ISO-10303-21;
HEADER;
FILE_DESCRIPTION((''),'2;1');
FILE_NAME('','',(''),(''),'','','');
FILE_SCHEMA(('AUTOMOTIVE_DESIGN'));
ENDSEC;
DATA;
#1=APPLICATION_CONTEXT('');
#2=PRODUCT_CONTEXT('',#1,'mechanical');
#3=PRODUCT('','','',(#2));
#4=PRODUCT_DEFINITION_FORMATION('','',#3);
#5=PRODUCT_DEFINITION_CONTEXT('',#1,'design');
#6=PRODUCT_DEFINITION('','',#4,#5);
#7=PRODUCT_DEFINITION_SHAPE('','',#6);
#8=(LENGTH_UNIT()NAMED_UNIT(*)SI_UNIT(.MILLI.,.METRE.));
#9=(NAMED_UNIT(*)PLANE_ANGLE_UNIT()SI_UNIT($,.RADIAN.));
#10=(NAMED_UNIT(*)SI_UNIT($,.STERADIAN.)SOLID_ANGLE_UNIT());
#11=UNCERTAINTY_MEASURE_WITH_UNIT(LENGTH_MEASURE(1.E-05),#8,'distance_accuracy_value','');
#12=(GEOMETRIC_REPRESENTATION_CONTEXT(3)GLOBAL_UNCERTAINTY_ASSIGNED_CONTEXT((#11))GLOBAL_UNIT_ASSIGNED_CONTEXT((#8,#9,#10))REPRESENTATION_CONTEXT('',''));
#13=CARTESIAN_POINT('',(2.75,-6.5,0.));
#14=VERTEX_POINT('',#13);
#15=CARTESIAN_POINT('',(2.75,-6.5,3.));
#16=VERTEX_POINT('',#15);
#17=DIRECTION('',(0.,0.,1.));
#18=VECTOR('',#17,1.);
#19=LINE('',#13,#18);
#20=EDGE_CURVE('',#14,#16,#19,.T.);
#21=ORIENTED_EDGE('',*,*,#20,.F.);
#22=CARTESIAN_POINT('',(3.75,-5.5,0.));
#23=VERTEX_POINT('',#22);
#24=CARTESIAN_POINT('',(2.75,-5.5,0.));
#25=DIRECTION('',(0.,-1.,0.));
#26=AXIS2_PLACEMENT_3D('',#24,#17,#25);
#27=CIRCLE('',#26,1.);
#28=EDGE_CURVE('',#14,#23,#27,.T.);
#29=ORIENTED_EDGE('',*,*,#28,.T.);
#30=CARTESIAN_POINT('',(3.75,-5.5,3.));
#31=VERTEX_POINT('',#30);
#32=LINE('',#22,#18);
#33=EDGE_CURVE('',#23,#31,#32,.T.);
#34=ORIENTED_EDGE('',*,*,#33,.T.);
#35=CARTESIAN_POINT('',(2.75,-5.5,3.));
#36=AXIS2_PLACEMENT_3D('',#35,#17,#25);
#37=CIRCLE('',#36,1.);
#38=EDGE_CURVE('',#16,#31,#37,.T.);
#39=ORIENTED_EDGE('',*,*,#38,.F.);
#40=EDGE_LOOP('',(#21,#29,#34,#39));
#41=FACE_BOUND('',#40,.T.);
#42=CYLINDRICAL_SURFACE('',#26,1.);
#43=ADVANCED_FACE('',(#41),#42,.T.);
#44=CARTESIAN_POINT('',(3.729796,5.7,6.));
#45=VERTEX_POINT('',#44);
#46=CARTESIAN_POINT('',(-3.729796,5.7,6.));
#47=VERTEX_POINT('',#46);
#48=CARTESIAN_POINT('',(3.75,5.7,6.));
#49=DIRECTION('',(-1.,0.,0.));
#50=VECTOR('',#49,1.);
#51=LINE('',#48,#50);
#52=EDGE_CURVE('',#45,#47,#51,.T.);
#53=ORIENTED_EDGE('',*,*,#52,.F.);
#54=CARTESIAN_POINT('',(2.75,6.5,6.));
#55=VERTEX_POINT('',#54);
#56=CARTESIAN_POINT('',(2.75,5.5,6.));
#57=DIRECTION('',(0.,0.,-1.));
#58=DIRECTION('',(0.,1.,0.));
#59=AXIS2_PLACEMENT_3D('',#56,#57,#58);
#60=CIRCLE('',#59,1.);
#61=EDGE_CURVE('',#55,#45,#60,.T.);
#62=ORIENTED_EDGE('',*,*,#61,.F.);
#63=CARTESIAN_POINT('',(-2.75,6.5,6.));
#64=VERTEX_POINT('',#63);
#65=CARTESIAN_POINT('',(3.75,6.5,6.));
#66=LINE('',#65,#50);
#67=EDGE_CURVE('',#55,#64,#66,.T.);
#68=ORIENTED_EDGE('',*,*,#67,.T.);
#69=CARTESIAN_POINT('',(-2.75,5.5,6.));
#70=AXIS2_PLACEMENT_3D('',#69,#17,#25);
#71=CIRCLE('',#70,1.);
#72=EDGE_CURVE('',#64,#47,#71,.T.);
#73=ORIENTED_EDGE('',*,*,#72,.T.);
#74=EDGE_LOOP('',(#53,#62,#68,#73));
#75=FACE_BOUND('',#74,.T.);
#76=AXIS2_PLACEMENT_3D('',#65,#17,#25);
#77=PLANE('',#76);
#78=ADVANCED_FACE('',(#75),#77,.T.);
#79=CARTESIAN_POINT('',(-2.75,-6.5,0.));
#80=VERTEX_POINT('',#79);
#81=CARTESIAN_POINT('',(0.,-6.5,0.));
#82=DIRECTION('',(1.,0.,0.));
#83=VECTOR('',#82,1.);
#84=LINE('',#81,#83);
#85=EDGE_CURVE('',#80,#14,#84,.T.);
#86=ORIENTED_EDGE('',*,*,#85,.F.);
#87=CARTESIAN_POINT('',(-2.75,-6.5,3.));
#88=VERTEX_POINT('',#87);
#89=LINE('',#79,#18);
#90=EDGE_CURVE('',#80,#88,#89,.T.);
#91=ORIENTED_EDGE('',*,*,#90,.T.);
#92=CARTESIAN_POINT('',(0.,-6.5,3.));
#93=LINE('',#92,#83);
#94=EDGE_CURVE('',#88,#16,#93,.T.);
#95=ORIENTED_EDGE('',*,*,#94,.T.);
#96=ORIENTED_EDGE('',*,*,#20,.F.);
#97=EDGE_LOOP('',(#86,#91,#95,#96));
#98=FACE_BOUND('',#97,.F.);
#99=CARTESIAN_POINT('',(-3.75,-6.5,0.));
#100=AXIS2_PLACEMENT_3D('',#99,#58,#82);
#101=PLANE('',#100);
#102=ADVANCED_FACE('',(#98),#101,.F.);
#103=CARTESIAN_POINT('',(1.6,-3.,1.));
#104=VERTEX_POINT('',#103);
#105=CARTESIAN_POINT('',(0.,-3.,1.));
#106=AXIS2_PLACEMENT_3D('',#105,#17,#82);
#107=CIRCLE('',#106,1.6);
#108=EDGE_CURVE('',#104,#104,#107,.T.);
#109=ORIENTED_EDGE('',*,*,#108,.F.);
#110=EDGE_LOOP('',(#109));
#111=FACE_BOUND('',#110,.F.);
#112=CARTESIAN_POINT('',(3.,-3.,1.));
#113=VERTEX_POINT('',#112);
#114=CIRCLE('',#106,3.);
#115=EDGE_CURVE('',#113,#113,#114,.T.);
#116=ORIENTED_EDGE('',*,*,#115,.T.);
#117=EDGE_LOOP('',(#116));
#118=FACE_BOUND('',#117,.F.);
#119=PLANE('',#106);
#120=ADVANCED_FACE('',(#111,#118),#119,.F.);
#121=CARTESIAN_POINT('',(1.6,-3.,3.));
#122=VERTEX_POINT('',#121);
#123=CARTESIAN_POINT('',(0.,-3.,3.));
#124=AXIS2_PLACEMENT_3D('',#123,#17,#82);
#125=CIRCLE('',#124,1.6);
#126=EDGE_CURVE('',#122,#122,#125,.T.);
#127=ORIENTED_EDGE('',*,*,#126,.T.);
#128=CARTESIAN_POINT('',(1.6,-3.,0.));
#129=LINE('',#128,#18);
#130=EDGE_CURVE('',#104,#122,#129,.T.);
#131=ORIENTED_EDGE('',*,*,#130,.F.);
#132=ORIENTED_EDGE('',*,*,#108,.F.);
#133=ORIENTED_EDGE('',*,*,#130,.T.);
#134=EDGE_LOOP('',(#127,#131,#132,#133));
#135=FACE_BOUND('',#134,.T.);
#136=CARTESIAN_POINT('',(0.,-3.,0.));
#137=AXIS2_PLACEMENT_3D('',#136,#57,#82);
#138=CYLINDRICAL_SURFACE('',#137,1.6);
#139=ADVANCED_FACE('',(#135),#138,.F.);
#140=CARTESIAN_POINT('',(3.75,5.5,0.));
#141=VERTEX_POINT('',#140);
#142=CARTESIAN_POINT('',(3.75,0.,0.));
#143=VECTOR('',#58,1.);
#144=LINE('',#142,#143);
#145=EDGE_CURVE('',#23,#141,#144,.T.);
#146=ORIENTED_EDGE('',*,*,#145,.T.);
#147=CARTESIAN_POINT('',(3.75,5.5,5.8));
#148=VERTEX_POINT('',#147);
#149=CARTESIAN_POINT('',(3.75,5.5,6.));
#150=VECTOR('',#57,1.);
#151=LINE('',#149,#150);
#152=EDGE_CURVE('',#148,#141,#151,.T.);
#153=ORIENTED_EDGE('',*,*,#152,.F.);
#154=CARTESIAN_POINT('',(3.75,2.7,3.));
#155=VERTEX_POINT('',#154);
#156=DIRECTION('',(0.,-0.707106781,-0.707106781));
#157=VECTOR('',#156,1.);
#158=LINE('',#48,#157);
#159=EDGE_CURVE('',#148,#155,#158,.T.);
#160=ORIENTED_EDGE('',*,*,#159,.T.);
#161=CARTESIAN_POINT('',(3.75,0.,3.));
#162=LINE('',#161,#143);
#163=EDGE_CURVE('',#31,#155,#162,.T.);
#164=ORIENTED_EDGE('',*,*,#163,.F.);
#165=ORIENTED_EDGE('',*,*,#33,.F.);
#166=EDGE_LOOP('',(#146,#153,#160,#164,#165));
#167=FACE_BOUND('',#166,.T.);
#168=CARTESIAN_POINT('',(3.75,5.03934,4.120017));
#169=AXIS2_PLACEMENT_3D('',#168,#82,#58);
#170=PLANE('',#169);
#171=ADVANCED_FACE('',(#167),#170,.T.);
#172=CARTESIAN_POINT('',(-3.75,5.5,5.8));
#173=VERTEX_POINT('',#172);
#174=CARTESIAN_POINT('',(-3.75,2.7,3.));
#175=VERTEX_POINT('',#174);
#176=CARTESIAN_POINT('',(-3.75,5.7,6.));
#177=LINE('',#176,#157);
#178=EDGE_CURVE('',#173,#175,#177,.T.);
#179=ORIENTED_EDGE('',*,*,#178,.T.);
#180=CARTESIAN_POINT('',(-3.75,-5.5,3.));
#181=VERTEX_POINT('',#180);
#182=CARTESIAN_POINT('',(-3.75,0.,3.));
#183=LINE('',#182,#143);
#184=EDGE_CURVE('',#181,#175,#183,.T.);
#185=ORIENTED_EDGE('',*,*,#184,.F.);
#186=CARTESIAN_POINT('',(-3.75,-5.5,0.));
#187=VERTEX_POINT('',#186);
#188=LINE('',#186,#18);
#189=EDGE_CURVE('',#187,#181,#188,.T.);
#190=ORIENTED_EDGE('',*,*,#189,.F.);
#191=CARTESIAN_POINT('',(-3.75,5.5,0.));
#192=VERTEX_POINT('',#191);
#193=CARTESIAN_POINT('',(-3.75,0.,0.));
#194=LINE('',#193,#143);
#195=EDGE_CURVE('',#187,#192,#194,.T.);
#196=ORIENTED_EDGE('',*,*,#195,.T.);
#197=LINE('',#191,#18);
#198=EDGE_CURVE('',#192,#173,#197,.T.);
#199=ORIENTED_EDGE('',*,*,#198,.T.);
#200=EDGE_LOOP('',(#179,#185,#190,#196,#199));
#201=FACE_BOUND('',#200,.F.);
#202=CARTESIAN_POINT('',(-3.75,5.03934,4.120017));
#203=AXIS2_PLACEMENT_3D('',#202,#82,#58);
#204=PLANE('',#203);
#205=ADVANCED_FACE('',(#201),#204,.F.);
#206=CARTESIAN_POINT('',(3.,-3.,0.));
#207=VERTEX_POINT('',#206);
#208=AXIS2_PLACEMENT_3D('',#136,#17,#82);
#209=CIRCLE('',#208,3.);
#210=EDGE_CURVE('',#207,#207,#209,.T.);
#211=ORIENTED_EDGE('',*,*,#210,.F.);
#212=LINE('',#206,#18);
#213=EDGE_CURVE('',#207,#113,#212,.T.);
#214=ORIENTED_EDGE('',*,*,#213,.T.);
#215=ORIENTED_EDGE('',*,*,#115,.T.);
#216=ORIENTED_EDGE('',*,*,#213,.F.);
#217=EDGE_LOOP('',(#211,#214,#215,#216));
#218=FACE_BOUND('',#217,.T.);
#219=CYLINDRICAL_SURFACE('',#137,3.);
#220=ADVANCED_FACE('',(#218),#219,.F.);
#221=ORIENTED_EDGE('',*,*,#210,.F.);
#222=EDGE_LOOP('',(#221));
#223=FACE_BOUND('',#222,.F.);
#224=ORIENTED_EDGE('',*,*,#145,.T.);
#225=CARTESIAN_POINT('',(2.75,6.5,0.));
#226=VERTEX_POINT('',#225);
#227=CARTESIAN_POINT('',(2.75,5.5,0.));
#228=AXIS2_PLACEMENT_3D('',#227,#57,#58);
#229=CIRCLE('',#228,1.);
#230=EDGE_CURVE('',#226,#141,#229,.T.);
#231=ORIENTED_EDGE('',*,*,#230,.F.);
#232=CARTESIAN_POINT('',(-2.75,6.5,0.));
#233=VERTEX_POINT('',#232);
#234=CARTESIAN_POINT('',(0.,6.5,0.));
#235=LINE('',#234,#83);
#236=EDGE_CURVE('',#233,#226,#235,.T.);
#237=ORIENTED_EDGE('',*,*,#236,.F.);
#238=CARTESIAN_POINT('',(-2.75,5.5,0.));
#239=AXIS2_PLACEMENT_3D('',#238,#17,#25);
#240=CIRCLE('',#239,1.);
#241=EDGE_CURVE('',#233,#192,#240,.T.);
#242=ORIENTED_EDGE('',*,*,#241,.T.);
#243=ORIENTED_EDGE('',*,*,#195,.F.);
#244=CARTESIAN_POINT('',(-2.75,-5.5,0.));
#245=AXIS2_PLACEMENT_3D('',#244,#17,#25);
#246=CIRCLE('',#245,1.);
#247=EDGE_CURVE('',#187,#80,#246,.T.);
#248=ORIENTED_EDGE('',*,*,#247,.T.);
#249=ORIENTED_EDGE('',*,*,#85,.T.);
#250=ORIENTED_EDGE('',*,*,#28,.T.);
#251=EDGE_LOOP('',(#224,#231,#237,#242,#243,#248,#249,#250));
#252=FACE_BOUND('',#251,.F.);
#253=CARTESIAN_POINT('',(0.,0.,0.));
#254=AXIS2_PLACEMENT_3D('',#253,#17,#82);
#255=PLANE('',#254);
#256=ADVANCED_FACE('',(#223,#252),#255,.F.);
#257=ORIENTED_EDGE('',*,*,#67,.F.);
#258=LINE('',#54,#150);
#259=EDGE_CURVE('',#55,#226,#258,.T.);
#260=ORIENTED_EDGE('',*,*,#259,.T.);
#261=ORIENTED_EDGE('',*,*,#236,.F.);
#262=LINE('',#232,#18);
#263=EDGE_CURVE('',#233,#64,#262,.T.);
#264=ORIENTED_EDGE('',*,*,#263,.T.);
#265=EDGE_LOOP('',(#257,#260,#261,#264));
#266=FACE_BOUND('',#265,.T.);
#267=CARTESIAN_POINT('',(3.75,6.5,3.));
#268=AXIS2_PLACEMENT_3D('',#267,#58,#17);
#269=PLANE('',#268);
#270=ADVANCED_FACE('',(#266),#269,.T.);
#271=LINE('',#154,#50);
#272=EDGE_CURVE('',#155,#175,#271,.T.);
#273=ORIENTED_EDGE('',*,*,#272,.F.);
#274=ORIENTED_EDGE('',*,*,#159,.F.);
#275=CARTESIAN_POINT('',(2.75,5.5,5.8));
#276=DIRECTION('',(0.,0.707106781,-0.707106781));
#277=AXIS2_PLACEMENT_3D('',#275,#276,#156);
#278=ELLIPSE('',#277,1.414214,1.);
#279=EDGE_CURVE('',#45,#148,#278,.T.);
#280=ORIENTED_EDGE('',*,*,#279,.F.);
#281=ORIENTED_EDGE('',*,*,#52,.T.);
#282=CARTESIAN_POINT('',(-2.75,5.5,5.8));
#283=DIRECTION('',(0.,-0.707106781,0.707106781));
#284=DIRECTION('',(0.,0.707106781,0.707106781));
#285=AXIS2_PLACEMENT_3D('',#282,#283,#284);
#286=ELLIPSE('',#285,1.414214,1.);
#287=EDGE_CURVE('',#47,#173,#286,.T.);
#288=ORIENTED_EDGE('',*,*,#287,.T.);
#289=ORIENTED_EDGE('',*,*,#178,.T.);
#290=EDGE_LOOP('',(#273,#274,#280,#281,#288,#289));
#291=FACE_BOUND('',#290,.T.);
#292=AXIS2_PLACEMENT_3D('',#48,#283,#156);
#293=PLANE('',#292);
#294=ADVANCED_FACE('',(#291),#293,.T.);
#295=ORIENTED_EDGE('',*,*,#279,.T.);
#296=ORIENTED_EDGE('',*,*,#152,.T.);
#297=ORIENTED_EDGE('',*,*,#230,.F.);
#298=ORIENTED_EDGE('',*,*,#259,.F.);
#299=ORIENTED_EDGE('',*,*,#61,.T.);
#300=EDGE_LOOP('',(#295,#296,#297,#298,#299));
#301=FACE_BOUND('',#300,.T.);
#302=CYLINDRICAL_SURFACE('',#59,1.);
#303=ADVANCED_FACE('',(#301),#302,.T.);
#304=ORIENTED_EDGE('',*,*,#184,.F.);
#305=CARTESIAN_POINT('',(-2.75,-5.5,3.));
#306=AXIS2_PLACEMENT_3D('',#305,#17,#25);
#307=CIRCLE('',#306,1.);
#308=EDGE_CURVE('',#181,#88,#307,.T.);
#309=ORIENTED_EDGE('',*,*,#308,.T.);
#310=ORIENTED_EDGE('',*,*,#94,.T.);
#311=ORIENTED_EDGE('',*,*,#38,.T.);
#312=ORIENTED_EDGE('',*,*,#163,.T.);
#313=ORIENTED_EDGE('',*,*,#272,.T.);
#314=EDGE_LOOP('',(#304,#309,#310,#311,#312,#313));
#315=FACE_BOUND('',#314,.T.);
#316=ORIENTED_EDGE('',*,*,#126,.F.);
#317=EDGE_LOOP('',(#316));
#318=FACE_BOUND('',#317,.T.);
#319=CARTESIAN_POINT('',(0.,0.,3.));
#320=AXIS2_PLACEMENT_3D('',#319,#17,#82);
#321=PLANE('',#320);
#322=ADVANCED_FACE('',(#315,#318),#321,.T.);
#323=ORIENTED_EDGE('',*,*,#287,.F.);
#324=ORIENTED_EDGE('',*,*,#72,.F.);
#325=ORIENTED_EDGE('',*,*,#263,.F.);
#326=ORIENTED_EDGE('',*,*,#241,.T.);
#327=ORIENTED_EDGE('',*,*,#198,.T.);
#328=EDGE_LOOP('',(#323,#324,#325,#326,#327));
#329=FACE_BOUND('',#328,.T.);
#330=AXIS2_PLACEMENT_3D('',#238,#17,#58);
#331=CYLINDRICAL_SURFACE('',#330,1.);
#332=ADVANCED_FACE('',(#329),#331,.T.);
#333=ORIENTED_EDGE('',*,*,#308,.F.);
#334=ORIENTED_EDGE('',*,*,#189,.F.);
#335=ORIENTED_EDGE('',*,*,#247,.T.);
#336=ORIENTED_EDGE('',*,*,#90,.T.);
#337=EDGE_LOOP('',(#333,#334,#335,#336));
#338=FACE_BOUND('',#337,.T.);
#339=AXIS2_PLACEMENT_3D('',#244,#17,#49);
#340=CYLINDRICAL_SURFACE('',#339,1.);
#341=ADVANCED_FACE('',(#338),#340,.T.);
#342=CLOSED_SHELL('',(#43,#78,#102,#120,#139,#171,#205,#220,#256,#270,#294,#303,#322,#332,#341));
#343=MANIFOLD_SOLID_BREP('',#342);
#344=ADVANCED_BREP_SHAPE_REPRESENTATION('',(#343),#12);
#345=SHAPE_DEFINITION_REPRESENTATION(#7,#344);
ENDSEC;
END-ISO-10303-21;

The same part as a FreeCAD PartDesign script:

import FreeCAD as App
import Part
import Sketcher
Q = App.Units.Quantity


def edges_at(feature, points):
    """Names of the edges that pass closest to the given points."""
    edges = feature.Shape.Edges
    near = lambda p: min(range(len(edges)), key=lambda i: edges[i].distToShape(Part.Vertex(*p))[0])
    return sorted({f"Edge{near(p) + 1}" for p in points})


def add_polygon(sketch, points):
    """Adds a closed chain of lines whose ends are joined by coincident constraints."""
    first, n = sketch.GeometryCount, len(points)
    for a, b in zip(points, points[1:] + points[:1]):
        sketch.addGeometry(Part.LineSegment(App.Vector(*a, 0), App.Vector(*b, 0)), False)
    for i in range(n):
        sketch.addConstraint(Sketcher.Constraint("Coincident", first + i, 2, first + (i + 1) % n, 1))

doc = App.newDocument("Part")
body = doc.addObject("PartDesign::Body", "Body")

# Sketch on XY plane
sketch1 = body.newObject("Sketcher::SketchObject", "Sketch")
sketch1.AttachmentSupport = (doc.getObject("XY_Plane"), [""])
sketch1.MapMode = "FlatFace"
add_polygon(sketch1, [(-3.8, 6.5), (-3.8, -6.5), (3.8, -6.5), (3.8, 6.5)])  # lines 0-3
sketch1.addGeometry(Part.Circle(App.Vector(0, -3, 0), App.Vector(0, 0, 1), 1.6), False)  # 4
sketch1.addConstraint(Sketcher.Constraint("Vertical", 0))
sketch1.addConstraint(Sketcher.Constraint("Horizontal", 1))
sketch1.addConstraint(Sketcher.Constraint("Vertical", 2))
sketch1.addConstraint(Sketcher.Constraint("Horizontal", 3))
sketch1.addConstraint(Sketcher.Constraint("Symmetric", 0, 2, 2, 2, -1, 1))
sketch1.addConstraint(Sketcher.Constraint("PointOnObject", 4, 3, -2))
sketch1.addConstraint(Sketcher.Constraint("Diameter", 4, Q("3.2 mm")))
sketch1.addConstraint(Sketcher.Constraint("DistanceY", 0, 2, 0, 1, Q("13 mm")))
sketch1.addConstraint(Sketcher.Constraint("DistanceX", 1, 1, 1, 2, Q("7.5 mm")))
sketch1.addConstraint(Sketcher.Constraint("DistanceY", 4, 3, -1, 1, Q("3 mm")))
pad1 = body.newObject("PartDesign::Pad", "Pad")
pad1.Profile = sketch1
pad1.Length = 3

# Sketch on XY plane
sketch2 = body.newObject("Sketcher::SketchObject", "Sketch001")
sketch2.AttachmentSupport = (doc.getObject("XY_Plane"), [""])
sketch2.MapMode = "FlatFace"
sketch2.addGeometry(Part.Circle(App.Vector(0, -3, 0), App.Vector(0, 0, 1), 3), False)
sketch2.addGeometry(Part.Circle(App.Vector(0, -3, 0), App.Vector(0, 0, 1), 1.6), False)
sketch2.addConstraint(Sketcher.Constraint("Coincident", 1, 3, 0, 3))
sketch2.addConstraint(Sketcher.Constraint("PointOnObject", 0, 3, -2))
sketch2.addConstraint(Sketcher.Constraint("Diameter", 0, Q("6 mm")))
sketch2.addConstraint(Sketcher.Constraint("Diameter", 1, Q("3.2 mm")))
sketch2.addConstraint(Sketcher.Constraint("DistanceY", 0, 3, -1, 1, Q("3 mm")))
pocket1 = body.newObject("PartDesign::Pocket", "Pocket")
pocket1.Profile = sketch2
pocket1.Length = 1
pocket1.Reversed = True

# Sketch on YZ plane
sketch3 = body.newObject("Sketcher::SketchObject", "Sketch002")
sketch3.AttachmentSupport = (doc.getObject("YZ_Plane"), [""])
sketch3.MapMode = "FlatFace"
sketch3.AttachmentOffset = App.Placement(App.Vector(0, 0, 3.75), App.Rotation())
add_polygon(sketch3, [(2.7, 3), (6.5, 3), (6.5, 6), (5.7, 6)])  # lines 0-3
sketch3.addConstraint(Sketcher.Constraint("Horizontal", 0))
sketch3.addConstraint(Sketcher.Constraint("Vertical", 1))
sketch3.addConstraint(Sketcher.Constraint("Horizontal", 2))
sketch3.addConstraint(Sketcher.Constraint("DistanceY", 1, 1, 1, 2, Q("3 mm")))
sketch3.addConstraint(Sketcher.Constraint("Angle", 3, Q("-135 deg")))
sketch3.addConstraint(Sketcher.Constraint("DistanceX", 0, 1, 0, 2, Q("3.8 mm")))
sketch3.addConstraint(Sketcher.Constraint("DistanceY", -1, 1, 0, 2, Q("3 mm")))
sketch3.addConstraint(Sketcher.Constraint("DistanceX", -1, 1, 0, 2, Q("6.5 mm")))
pad2 = body.newObject("PartDesign::Pad", "Pad001")
pad2.Profile = sketch3
pad2.Length = 7.5
pad2.Reversed = True
doc.recompute()

fillet = body.newObject("PartDesign::Fillet", "Fillet")
fillet.Base = (pad2, edges_at(pad2, [
    (3.75, -6.5, 1.5),
    (-3.75, -6.5, 1.5),
    (3.75, 6.5, 3),
    (-3.75, 6.5, 3),
]))
fillet.Radius = 1

doc.recompute()
